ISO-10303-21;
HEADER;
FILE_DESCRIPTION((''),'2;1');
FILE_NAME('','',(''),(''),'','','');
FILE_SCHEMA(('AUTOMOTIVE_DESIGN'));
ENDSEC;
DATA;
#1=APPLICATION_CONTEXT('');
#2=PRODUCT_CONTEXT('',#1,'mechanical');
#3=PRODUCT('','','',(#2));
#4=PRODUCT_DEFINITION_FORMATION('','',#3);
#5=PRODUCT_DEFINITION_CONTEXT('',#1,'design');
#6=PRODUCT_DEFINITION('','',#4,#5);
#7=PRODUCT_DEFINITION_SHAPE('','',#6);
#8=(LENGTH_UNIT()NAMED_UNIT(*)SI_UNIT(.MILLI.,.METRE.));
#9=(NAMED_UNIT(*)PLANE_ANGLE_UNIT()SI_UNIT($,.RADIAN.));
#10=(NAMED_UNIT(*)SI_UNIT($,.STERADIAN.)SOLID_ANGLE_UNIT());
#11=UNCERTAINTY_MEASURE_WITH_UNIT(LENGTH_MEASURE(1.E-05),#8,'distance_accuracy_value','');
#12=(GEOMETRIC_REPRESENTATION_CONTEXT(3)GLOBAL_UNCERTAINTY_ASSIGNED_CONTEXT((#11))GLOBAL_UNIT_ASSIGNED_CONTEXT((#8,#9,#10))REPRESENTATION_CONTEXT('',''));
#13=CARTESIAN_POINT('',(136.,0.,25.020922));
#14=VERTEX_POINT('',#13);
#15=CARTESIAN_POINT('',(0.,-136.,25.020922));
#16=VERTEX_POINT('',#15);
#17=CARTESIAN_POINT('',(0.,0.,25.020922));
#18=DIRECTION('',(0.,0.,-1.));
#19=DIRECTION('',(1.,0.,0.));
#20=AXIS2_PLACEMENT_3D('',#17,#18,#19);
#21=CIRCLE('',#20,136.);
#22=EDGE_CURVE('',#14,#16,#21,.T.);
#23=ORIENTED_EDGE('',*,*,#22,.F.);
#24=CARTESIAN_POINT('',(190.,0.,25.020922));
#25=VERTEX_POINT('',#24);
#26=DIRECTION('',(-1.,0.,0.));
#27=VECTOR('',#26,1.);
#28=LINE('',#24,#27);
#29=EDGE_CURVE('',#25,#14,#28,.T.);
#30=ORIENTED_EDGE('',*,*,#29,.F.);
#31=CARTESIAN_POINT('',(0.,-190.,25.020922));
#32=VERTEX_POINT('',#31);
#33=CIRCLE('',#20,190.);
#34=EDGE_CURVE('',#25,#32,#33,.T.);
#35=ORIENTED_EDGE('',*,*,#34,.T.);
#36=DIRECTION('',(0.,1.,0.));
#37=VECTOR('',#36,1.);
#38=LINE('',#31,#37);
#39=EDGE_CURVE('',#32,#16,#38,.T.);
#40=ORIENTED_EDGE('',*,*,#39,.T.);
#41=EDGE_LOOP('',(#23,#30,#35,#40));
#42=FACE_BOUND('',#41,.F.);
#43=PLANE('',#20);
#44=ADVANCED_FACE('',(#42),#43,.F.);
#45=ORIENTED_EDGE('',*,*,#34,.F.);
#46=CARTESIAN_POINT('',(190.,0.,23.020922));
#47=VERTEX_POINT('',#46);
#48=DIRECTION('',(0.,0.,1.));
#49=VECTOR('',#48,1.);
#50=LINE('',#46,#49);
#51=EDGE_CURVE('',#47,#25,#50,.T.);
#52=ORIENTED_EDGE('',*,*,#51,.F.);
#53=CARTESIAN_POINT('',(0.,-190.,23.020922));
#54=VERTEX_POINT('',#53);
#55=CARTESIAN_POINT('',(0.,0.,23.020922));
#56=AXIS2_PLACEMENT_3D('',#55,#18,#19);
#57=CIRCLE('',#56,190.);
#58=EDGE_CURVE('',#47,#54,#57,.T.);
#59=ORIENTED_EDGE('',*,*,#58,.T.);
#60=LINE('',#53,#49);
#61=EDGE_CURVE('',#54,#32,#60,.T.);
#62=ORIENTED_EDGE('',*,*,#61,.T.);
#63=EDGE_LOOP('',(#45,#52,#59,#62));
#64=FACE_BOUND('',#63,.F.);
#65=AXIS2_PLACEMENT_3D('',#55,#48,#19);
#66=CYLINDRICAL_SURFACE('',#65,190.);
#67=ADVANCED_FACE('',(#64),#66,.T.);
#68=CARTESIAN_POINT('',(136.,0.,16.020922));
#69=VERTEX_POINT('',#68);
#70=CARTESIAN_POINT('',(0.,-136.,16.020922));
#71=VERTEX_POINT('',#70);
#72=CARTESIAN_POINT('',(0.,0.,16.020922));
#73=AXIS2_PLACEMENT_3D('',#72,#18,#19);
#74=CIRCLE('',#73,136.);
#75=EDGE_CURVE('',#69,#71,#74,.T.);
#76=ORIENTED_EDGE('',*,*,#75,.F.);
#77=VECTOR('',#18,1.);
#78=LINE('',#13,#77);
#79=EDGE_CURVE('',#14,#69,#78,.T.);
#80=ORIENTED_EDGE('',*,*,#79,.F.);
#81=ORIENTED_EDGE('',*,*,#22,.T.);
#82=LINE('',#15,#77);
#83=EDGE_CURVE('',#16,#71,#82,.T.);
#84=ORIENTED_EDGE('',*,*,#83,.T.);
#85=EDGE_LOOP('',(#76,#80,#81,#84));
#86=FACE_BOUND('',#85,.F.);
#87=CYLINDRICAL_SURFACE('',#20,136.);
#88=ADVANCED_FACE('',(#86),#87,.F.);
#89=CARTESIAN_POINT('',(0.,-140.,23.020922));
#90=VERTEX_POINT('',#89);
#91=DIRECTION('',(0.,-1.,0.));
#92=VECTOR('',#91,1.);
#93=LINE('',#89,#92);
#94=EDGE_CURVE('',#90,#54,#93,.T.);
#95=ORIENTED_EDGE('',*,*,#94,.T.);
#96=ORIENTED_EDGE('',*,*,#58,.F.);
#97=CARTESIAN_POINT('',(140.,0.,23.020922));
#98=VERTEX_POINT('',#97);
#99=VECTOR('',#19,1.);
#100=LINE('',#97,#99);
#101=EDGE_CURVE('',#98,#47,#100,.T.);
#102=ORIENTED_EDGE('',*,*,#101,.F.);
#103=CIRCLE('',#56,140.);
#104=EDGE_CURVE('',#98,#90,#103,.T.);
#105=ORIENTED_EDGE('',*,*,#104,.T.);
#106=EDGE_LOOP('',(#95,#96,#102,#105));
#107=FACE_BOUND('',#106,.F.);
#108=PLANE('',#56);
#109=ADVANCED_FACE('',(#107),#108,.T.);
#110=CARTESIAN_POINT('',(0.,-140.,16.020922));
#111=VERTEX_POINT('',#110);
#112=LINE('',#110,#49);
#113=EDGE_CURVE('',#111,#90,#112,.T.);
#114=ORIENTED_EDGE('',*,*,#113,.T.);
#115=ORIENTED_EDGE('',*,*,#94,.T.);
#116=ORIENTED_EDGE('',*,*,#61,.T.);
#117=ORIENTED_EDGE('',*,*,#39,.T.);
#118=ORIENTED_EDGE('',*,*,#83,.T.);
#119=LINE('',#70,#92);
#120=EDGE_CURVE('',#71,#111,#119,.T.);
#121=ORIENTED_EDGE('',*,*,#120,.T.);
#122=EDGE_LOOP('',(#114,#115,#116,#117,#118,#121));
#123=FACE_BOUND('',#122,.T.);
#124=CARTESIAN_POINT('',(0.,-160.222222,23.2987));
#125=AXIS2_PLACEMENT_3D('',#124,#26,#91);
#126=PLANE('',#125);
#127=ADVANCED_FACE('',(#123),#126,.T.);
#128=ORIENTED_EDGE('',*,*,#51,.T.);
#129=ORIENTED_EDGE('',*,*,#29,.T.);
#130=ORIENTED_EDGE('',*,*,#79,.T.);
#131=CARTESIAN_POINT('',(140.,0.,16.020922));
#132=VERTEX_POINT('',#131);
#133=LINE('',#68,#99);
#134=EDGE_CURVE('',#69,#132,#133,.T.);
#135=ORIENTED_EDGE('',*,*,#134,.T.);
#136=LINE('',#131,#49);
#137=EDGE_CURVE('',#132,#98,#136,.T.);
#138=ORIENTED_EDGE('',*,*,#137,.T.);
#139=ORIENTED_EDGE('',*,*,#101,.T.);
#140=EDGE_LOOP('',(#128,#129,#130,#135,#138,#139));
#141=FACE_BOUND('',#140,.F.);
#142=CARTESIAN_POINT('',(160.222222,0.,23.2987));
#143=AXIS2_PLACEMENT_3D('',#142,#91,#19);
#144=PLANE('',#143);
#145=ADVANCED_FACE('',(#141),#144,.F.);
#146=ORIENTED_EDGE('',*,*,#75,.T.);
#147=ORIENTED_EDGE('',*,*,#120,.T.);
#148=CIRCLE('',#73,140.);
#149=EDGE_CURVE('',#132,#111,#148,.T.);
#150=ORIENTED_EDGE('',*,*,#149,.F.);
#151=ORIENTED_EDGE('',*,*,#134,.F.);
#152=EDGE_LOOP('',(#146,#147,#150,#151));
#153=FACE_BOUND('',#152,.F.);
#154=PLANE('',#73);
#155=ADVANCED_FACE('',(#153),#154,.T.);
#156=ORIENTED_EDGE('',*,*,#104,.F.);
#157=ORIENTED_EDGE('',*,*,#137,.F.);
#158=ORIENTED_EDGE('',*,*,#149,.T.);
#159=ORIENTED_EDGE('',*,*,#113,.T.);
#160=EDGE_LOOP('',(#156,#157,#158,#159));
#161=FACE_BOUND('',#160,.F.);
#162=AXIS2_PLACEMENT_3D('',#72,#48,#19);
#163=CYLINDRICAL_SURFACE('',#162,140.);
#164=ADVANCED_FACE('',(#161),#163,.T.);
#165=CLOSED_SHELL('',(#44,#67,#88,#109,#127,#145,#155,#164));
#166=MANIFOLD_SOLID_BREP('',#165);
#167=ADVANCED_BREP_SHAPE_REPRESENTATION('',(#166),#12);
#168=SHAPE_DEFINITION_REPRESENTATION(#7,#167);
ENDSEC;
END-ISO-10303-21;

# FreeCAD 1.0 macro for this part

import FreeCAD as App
import Part
import Sketcher
Q = App.Units.Quantity

doc = App.newDocument("Part")
body = doc.addObject("PartDesign::Body", "Body")

sketch1 = body.newObject("Sketcher::SketchObject", "Sketch")
sketch1.AttachmentSupport = (doc.getObject("XZ_Plane"), [""])
sketch1.MapMode = "FlatFace"
sketch1.addGeometry(Part.LineSegment(App.Vector(136, 25, 0), App.Vector(136, 16, 0)), False)
sketch1.addGeometry(Part.LineSegment(App.Vector(136, 16, 0), App.Vector(140, 16, 0)), False)
sketch1.addGeometry(Part.LineSegment(App.Vector(140, 16, 0), App.Vector(140, 23, 0)), False)
sketch1.addGeometry(Part.LineSegment(App.Vector(140, 23, 0), App.Vector(190, 23, 0)), False)
sketch1.addGeometry(Part.LineSegment(App.Vector(190, 23, 0), App.Vector(190, 25, 0)), False)
sketch1.addGeometry(Part.LineSegment(App.Vector(190, 25, 0), App.Vector(136, 25, 0)), False)
sketch1.addConstraint(Sketcher.Constraint("Coincident", 0, 2, 1, 1))
sketch1.addConstraint(Sketcher.Constraint("Coincident", 1, 2, 2, 1))
sketch1.addConstraint(Sketcher.Constraint("Coincident", 2, 2, 3, 1))
sketch1.addConstraint(Sketcher.Constraint("Coincident", 3, 2, 4, 1))
sketch1.addConstraint(Sketcher.Constraint("Coincident", 4, 2, 5, 1))
sketch1.addConstraint(Sketcher.Constraint("Coincident", 5, 2, 0, 1))
sketch1.addConstraint(Sketcher.Constraint("Vertical", 0))
sketch1.addConstraint(Sketcher.Constraint("Horizontal", 1))
sketch1.addConstraint(Sketcher.Constraint("Vertical", 2))
sketch1.addConstraint(Sketcher.Constraint("Horizontal", 3))
sketch1.addConstraint(Sketcher.Constraint("Vertical", 4))
sketch1.addConstraint(Sketcher.Constraint("Horizontal", 5))
sketch1.addConstraint(Sketcher.Constraint("DistanceX", 1, 1, 1, 2, Q("4 mm")))
sketch1.addConstraint(Sketcher.Constraint("DistanceX", 3, 1, 3, 2, Q("50 mm")))
sketch1.addConstraint(Sketcher.Constraint("DistanceY", 0, 2, 0, 1, Q("9 mm")))
sketch1.addConstraint(Sketcher.Constraint("DistanceY", 2, 1, 2, 2, Q("7 mm")))
sketch1.addConstraint(Sketcher.Constraint("DistanceX", -1, 1, 0, 2, Q("136 mm")))
sketch1.addConstraint(Sketcher.Constraint("DistanceY", -1, 1, 0, 2, Q("16.020922 mm")))
revolution = body.newObject("PartDesign::Revolution", "Revolution")
revolution.Profile = sketch1
revolution.ReferenceAxis = (sketch1, ["V_Axis"])
revolution.Angle = 90
revolution.Reversed = True

doc.recompute()
